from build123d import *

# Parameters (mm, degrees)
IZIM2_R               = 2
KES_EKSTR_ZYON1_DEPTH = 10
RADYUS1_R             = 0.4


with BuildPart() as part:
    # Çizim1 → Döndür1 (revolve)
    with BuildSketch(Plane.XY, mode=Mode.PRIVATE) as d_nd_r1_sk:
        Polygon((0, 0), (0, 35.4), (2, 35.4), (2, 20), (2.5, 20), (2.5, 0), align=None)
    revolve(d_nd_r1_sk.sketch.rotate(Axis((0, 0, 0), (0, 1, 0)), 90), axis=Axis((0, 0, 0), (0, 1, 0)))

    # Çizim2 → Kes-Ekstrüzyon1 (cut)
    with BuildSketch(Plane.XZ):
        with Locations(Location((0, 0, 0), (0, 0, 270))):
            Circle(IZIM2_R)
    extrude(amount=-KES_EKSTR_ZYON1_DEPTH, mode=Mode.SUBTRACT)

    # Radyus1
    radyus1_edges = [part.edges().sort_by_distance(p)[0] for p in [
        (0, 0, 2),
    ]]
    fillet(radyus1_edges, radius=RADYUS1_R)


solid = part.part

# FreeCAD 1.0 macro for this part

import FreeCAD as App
import Part
import Sketcher

V = App.Vector
Q = App.Units.Quantity


def edges_at(feature, points):
    """Names of the edges that pass closest to the given points."""
    edges = feature.Shape.Edges
    near = lambda p: min(range(len(edges)), key=lambda i: edges[i].distToShape(Part.Vertex(*p))[0])
    return sorted({f"Edge{near(p) + 1}" for p in points})

doc = App.newDocument("Part")
body = doc.addObject("PartDesign::Body", "Body")

sketch1 = body.newObject("Sketcher::SketchObject", "Sketch")
sketch1.AttachmentSupport = (doc.getObject("XY_Plane"), [""])
sketch1.MapMode = "FlatFace"
sketch1.addGeometry(Part.LineSegment(V(0, 35.4, 0), V(0, 0, 0)), False)
sketch1.addGeometry(Part.LineSegment(V(0, 0, 0), V(2.5, 0, 0)), False)
sketch1.addGeometry(Part.LineSegment(V(2.5, 0, 0), V(2.5, 20, 0)), False)
sketch1.addGeometry(Part.LineSegment(V(2.5, 20, 0), V(2, 20, 0)), False)
sketch1.addGeometry(Part.LineSegment(V(2, 20, 0), V(2, 35.4, 0)), False)
sketch1.addGeometry(Part.LineSegment(V(2, 35.4, 0), V(0, 35.4, 0)), False)
sketch1.addConstraint(Sketcher.Constraint("Coincident", 0, 2, 1, 1))
sketch1.addConstraint(Sketcher.Constraint("Coincident", 1, 2, 2, 1))
sketch1.addConstraint(Sketcher.Constraint("Coincident", 2, 2, 3, 1))
sketch1.addConstraint(Sketcher.Constraint("Coincident", 3, 2, 4, 1))
sketch1.addConstraint(Sketcher.Constraint("Coincident", 4, 2, 5, 1))
sketch1.addConstraint(Sketcher.Constraint("Coincident", 5, 2, 0, 1))
sketch1.addConstraint(Sketcher.Constraint("Vertical", 0))
sketch1.addConstraint(Sketcher.Constraint("Horizontal", 1))
sketch1.addConstraint(Sketcher.Constraint("Vertical", 2))
sketch1.addConstraint(Sketcher.Constraint("Horizontal", 3))
sketch1.addConstraint(Sketcher.Constraint("Vertical", 4))
sketch1.addConstraint(Sketcher.Constraint("Horizontal", 5))
sketch1.addConstraint(Sketcher.Constraint("Coincident", 0, 2, -1, 1))
sketch1.addConstraint(Sketcher.Constraint("DistanceX", 5, 2, 5, 1, Q("2 mm")))
sketch1.addConstraint(Sketcher.Constraint("DistanceY", 2, 1, 2, 2, Q("20 mm")))
sketch1.addConstraint(Sketcher.Constraint("DistanceX", 1, 1, 1, 2, Q("2.5 mm")))
sketch1.addConstraint(Sketcher.Constraint("DistanceY", 0, 2, 0, 1, Q("35.4 mm")))
revolution = body.newObject("PartDesign::Revolution", "Revolution")
revolution.Profile = sketch1
revolution.ReferenceAxis = (sketch1, ["V_Axis"])
revolution.Angle = 360

sketch2 = body.newObject("Sketcher::SketchObject", "Sketch001")
sketch2.AttachmentSupport = (doc.getObject("XZ_Plane"), [""])
sketch2.MapMode = "FlatFace"
sketch2.addGeometry(Part.Circle(V(0, 0, 0), V(0, 0, 1), 2), False)
sketch2.addConstraint(Sketcher.Constraint("Coincident", 0, 3, -1, 1))
sketch2.addConstraint(Sketcher.Constraint("Diameter", 0, Q("4 mm")))
pocket1 = body.newObject("PartDesign::Pocket", "Pocket")
pocket1.Profile = sketch2
pocket1.Length = 10
doc.recompute()

fillet = body.newObject("PartDesign::Fillet", "Fillet")
fillet.Base = (pocket1, edges_at(pocket1, [(0, 0, 2)]))
fillet.Radius = 0.4

doc.recompute()
